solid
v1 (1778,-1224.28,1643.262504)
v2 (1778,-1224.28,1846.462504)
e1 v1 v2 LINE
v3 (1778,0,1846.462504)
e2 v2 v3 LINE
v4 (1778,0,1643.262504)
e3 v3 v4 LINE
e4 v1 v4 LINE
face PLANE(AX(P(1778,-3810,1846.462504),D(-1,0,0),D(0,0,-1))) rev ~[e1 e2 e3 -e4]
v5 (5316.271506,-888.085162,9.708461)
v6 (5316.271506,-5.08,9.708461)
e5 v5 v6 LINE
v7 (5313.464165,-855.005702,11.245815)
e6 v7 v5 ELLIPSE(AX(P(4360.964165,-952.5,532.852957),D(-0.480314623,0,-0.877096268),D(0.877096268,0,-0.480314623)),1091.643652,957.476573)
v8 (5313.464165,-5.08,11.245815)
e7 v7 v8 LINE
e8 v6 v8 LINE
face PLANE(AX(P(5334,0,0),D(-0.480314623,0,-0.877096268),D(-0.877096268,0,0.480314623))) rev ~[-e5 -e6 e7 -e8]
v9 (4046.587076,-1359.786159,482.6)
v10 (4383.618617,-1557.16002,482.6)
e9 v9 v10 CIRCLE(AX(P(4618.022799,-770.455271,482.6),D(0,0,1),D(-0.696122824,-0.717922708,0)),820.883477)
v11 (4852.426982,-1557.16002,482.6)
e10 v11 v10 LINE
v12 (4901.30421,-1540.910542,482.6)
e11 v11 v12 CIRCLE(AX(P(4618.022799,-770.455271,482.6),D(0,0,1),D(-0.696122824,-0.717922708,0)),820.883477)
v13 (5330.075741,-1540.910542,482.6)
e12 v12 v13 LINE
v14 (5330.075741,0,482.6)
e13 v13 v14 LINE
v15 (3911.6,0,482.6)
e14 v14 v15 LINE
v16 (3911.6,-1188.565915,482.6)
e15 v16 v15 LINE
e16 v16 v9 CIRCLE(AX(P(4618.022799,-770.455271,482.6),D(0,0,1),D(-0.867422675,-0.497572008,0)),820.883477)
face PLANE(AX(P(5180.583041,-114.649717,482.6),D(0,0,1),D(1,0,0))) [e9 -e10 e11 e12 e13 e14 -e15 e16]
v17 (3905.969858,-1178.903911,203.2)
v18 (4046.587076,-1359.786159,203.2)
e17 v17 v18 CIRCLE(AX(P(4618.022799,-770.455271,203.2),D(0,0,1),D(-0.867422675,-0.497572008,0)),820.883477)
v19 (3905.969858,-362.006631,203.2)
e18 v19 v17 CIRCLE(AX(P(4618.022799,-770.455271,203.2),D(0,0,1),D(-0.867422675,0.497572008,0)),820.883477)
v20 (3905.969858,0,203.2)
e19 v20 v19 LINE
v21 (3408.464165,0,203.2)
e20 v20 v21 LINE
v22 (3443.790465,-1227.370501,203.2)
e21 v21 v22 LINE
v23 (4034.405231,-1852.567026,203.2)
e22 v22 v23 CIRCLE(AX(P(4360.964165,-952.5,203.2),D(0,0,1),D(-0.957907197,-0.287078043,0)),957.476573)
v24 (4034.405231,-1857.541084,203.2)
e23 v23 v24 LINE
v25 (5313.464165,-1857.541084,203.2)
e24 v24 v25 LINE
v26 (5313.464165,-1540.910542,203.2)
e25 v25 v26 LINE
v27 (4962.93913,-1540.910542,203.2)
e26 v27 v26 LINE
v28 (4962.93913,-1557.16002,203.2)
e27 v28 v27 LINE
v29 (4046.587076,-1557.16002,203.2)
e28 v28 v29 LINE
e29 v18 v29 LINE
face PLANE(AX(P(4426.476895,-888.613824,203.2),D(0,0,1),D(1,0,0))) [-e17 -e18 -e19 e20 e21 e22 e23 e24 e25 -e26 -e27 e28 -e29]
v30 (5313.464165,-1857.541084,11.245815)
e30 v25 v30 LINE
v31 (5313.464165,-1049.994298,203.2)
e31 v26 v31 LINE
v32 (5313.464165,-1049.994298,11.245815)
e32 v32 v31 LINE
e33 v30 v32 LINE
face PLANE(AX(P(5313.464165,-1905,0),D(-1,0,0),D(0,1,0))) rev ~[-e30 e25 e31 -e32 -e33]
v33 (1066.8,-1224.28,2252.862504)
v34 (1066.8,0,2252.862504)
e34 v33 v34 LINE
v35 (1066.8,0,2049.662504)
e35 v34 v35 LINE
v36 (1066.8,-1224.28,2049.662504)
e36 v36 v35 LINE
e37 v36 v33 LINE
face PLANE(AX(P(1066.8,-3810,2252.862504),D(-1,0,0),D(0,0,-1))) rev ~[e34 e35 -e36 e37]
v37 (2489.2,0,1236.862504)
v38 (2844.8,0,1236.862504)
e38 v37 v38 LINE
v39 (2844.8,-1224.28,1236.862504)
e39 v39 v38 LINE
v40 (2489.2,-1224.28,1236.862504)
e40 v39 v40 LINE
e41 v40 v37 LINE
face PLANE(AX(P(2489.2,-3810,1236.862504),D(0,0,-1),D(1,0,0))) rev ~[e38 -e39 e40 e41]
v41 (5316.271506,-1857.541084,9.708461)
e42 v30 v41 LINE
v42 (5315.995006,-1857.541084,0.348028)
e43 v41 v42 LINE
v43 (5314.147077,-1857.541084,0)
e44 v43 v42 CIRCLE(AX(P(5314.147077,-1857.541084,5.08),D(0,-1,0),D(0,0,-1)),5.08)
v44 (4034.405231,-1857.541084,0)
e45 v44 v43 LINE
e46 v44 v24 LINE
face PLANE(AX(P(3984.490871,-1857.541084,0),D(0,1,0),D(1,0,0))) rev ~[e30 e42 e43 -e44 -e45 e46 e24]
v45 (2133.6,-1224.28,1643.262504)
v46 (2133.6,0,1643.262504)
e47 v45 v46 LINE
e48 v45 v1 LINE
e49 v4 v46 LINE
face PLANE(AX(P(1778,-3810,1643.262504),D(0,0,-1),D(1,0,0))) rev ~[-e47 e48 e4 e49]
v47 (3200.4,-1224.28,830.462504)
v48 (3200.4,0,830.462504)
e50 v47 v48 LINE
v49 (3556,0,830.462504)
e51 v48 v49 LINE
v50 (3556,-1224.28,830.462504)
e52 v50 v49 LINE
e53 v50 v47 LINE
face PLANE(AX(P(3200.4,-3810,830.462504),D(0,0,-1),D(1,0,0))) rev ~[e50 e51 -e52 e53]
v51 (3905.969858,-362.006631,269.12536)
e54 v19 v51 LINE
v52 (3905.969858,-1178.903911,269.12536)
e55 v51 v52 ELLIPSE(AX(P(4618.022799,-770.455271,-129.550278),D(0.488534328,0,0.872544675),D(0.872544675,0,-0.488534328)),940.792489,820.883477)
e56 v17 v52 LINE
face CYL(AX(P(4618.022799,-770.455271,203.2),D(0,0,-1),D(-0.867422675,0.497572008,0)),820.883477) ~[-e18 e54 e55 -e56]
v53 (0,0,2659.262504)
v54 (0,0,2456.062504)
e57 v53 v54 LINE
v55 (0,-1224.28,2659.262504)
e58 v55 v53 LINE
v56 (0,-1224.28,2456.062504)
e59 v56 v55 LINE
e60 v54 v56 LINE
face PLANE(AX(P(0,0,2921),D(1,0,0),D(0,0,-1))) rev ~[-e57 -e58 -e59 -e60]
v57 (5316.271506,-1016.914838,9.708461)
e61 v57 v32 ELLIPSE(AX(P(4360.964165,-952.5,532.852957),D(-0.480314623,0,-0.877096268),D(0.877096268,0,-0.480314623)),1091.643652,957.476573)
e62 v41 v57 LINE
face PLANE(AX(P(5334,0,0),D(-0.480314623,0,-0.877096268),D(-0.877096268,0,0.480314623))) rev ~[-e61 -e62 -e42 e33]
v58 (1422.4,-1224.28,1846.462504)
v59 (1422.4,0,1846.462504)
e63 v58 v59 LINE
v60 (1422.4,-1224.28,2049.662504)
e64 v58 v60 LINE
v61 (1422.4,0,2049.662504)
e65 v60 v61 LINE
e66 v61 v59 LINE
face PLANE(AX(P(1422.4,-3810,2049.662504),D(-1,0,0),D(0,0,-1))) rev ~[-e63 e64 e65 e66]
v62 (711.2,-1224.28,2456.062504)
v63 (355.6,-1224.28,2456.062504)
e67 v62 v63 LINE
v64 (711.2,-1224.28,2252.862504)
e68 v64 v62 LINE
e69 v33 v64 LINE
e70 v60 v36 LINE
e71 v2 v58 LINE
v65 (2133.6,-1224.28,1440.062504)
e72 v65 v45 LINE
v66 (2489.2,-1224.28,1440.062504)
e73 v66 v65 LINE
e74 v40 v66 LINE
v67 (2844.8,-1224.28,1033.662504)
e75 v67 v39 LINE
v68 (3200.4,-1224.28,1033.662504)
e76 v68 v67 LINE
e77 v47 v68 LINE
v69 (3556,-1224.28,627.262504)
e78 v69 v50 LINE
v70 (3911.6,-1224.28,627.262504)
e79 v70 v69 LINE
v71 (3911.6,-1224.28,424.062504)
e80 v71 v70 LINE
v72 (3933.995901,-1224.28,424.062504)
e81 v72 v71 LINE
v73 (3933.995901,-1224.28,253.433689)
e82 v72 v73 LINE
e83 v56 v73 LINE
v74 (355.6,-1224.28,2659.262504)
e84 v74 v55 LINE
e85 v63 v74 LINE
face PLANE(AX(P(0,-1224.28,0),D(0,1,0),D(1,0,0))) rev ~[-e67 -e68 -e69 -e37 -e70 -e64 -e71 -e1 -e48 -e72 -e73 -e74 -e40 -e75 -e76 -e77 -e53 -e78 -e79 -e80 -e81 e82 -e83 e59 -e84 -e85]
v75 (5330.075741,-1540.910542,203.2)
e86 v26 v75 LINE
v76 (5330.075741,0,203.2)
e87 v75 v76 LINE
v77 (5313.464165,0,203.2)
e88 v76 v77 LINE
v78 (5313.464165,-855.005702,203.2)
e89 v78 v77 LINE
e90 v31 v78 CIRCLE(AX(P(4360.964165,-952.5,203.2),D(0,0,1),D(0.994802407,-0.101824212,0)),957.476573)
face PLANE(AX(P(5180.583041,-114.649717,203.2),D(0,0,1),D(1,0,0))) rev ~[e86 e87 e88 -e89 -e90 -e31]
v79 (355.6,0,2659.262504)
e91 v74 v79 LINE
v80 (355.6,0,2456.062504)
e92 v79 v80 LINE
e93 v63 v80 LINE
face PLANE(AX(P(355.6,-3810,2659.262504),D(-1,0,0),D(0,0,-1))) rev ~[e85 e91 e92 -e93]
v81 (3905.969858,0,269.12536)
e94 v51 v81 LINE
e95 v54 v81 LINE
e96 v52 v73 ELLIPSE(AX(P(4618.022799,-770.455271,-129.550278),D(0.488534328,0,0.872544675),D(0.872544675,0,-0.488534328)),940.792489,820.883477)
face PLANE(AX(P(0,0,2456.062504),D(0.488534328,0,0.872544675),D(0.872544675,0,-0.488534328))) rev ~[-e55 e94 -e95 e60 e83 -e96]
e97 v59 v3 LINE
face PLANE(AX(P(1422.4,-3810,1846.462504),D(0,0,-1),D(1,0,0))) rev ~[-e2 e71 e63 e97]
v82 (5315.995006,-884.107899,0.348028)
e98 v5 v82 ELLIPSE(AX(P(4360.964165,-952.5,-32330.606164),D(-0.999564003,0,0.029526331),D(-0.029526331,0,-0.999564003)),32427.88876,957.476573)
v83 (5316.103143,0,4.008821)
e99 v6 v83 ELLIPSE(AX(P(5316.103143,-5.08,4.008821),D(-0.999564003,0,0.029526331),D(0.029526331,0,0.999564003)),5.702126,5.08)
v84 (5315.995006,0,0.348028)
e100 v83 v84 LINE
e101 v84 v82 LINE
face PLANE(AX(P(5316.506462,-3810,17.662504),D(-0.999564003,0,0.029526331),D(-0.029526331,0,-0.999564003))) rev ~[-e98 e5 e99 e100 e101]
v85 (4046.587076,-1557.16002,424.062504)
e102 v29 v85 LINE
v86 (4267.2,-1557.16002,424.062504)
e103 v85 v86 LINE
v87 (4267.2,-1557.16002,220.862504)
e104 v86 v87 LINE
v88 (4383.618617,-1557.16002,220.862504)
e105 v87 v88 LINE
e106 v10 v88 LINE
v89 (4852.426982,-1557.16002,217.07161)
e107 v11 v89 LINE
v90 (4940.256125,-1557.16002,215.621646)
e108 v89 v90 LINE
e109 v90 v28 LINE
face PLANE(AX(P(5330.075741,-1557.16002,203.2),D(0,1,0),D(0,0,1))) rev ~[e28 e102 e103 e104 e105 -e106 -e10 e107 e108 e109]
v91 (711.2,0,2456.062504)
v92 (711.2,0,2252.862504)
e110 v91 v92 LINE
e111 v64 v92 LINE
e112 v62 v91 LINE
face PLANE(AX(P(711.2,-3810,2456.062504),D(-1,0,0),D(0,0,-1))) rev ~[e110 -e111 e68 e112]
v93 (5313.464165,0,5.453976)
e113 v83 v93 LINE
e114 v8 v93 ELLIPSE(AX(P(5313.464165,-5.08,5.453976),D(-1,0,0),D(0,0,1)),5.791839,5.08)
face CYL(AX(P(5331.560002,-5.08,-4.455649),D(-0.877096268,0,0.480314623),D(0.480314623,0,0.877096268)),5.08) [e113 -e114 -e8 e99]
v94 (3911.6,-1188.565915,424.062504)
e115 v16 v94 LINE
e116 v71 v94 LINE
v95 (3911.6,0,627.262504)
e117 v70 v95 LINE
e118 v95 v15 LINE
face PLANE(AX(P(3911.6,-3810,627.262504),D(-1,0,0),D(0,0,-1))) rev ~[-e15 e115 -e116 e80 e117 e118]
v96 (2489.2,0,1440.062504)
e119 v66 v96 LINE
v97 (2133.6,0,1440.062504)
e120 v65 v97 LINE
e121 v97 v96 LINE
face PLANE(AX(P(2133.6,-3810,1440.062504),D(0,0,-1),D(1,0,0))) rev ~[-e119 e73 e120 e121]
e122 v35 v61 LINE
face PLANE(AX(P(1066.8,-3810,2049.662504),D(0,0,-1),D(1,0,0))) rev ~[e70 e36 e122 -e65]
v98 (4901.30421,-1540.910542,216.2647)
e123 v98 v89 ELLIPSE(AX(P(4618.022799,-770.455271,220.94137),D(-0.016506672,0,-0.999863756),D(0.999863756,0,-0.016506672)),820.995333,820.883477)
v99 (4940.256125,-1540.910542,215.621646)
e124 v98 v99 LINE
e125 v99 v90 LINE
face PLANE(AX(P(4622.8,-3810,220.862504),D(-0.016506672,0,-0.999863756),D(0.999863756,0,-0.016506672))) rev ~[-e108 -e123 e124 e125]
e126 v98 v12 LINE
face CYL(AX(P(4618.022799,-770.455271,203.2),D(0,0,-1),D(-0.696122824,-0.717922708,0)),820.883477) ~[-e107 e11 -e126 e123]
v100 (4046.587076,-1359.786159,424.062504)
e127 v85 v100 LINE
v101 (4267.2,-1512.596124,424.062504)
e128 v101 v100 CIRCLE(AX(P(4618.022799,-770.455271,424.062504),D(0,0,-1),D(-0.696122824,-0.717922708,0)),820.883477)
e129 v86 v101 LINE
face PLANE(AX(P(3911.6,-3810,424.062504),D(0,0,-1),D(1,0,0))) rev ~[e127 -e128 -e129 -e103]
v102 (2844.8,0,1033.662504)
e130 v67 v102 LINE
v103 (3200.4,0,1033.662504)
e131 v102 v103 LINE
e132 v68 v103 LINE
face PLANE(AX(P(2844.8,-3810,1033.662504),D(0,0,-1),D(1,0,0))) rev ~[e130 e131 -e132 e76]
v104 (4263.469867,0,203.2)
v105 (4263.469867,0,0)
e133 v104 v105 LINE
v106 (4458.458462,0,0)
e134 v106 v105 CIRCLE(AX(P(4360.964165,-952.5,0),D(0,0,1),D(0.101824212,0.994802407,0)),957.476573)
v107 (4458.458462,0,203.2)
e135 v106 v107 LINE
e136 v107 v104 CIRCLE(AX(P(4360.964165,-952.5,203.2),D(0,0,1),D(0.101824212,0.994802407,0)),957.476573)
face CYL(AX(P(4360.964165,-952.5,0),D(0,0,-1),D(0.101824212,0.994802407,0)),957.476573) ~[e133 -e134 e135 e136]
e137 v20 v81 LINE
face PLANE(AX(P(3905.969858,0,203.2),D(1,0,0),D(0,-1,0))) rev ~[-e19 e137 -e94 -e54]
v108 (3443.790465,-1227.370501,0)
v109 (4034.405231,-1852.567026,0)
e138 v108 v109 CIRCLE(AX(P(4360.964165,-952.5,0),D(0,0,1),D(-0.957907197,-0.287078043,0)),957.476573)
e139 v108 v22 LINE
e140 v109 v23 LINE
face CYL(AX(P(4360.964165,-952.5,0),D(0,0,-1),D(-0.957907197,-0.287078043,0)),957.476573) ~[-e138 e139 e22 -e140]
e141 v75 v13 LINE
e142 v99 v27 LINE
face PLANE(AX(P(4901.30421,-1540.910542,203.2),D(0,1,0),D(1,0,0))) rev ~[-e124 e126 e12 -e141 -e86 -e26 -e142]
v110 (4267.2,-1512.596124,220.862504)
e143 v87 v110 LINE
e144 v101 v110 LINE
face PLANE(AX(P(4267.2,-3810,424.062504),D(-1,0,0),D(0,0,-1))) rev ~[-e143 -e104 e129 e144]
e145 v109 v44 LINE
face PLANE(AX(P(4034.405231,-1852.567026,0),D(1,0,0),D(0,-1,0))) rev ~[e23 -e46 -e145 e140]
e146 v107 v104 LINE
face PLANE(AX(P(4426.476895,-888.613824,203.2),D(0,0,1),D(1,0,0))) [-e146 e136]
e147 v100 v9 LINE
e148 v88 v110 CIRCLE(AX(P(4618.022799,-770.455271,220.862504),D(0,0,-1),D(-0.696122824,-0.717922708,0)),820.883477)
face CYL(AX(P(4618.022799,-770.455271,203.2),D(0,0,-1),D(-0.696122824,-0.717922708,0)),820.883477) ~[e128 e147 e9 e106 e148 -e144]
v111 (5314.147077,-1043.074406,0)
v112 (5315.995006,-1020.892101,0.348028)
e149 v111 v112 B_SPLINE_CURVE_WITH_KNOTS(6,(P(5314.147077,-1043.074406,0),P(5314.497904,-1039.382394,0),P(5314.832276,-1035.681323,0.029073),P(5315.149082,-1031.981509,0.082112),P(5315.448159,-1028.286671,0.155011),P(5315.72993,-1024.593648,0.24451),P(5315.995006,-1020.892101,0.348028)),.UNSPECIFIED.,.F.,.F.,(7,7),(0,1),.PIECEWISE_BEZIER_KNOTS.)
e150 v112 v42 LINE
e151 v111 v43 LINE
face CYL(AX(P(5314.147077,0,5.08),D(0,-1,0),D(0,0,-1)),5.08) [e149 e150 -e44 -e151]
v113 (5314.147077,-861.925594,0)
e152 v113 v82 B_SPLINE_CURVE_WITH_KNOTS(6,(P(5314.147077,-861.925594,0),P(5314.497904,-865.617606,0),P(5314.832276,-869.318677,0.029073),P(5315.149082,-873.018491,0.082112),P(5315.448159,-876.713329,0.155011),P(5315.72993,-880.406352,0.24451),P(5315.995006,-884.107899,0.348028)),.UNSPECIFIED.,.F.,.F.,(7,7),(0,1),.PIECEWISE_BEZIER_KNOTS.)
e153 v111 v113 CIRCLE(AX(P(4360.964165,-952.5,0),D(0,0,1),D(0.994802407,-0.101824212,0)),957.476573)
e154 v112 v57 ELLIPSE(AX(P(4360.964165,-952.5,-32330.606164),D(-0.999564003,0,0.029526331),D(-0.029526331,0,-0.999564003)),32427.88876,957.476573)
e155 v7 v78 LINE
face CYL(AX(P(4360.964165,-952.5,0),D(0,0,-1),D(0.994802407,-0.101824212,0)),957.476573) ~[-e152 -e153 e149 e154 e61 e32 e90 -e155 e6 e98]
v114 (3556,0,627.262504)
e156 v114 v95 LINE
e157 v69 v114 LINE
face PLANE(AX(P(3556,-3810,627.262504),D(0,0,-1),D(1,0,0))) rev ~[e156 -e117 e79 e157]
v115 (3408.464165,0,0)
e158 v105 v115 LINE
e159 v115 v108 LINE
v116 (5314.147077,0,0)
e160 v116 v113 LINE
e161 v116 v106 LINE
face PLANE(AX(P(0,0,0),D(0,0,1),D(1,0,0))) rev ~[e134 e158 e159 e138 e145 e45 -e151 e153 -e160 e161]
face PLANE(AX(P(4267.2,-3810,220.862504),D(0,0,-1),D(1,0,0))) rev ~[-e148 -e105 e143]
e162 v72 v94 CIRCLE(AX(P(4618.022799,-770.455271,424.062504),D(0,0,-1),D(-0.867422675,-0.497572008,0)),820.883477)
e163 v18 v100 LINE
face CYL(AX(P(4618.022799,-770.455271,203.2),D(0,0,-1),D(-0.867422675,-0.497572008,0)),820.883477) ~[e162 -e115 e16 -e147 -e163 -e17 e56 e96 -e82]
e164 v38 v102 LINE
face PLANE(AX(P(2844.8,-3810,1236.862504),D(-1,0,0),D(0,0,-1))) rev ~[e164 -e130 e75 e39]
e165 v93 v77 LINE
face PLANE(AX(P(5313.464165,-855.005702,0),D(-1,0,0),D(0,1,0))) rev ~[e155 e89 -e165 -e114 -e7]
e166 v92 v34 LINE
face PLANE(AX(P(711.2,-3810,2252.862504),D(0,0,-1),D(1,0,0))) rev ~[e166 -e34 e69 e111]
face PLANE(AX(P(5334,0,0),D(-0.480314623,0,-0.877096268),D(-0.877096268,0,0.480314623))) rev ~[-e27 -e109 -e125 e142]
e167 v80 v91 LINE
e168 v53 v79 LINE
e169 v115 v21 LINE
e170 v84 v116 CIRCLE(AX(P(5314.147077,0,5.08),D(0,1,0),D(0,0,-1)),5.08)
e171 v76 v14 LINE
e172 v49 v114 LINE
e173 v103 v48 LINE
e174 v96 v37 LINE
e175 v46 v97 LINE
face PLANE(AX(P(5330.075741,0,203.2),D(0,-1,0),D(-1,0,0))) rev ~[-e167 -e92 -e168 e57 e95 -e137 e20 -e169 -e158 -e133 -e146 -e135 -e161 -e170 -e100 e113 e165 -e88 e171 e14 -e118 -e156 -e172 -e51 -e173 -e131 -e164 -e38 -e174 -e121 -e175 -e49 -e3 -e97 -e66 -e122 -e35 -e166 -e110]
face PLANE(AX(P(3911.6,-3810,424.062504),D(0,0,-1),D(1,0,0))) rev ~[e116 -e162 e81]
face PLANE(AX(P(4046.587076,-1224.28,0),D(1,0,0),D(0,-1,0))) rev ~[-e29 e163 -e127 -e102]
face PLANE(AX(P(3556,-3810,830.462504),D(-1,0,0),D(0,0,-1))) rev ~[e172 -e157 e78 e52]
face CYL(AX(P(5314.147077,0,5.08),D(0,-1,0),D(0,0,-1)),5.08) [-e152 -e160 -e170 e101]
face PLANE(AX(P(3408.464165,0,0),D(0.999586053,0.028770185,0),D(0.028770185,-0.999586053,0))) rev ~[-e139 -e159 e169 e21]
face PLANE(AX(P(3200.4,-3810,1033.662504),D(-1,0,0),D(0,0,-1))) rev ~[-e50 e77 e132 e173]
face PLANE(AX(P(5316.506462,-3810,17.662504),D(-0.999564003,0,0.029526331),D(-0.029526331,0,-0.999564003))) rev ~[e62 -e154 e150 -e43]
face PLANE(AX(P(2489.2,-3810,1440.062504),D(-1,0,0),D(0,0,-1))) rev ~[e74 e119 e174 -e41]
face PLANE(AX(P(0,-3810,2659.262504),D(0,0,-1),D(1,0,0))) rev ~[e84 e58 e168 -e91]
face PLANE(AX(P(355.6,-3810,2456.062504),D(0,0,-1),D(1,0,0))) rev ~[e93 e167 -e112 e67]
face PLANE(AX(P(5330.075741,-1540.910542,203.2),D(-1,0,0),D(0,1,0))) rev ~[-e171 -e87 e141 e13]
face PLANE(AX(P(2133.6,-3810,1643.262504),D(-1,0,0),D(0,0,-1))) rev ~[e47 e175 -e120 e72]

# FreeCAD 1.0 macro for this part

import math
import FreeCAD as App
import Part
import Sketcher
from FreeCAD import Vector
Q = App.Units.Quantity


def edges_at(feature, points):
    """Names of the edges that pass closest to the given points."""
    edges = feature.Shape.Edges
    near = lambda p: min(range(len(edges)), key=lambda i: edges[i].distToShape(Part.Vertex(*p))[0])
    return sorted({f"Edge{near(p) + 1}" for p in points})

doc = App.newDocument("Part")
body = doc.addObject("PartDesign::Body", "Body")

# Sketch on XZ plane
sketch1 = body.newObject("Sketcher::SketchObject", "Sketch")
sketch1.AttachmentSupport = (doc.getObject("XZ_Plane"), [""])
sketch1.MapMode = "FlatFace"
sketch1.addGeometry(Part.LineSegment(Vector(0, 2921, 0), Vector(0, 0, 0)), False)
sketch1.addGeometry(Part.LineSegment(Vector(0, 0, 0), Vector(5334, 0, 0)), False)
sketch1.addGeometry(Part.LineSegment(Vector(5334, 0, 0), Vector(0, 2921, 0)), False)
sketch1.addConstraint(Sketcher.Constraint("Coincident", 0, 2, 1, 1))
sketch1.addConstraint(Sketcher.Constraint("Coincident", 1, 2, 2, 1))
sketch1.addConstraint(Sketcher.Constraint("Coincident", 2, 2, 0, 1))
sketch1.addConstraint(Sketcher.Constraint("Vertical", 0))
sketch1.addConstraint(Sketcher.Constraint("Horizontal", 1))
sketch1.addConstraint(Sketcher.Constraint("Coincident", 0, 2, -1, 1))
sketch1.addConstraint(Sketcher.Constraint("DistanceX", 1, 1, 1, 2, Q("210 in")))
sketch1.addConstraint(Sketcher.Constraint("DistanceY", 0, 2, 0, 1, Q("115 in")))
pad1 = body.newObject("PartDesign::Pad", "Pad")
pad1.Profile = sketch1
pad1.Length = Q("150 in")
doc.recompute()

fillet = body.newObject("PartDesign::Fillet", "Fillet")
fillet.Base = (pad1, edges_at(pad1, [
    (5334, -1905, 0),
    (0, -1905, 2921),
    (2667, 0, 1460.5),
    (2667, -3810, 1460.5),
]))
fillet.Radius = Q("0.2 in")

# Sketch on XY plane
sketch2 = body.newObject("Sketcher::SketchObject", "Sketch001")
sketch2.AttachmentSupport = (doc.getObject("XY_Plane"), [""])
sketch2.MapMode = "FlatFace"
sketch2.addGeometry(Part.LineSegment(Vector(0, -3810, 0), Vector(0, -1224.28, 0)), False)
sketch2.addGeometry(Part.LineSegment(Vector(0, -1224.28, 0), Vector(4046.587076, -1224.28, 0)), False)
sketch2.addGeometry(Part.LineSegment(Vector(4046.587076, -1224.28, 0), Vector(4046.587076, -3810, 0)), False)
sketch2.addGeometry(Part.LineSegment(Vector(4046.587076, -3810, 0), Vector(0, -3810, 0)), False)
sketch2.addConstraint(Sketcher.Constraint("Coincident", 0, 2, 1, 1))
sketch2.addConstraint(Sketcher.Constraint("Coincident", 1, 2, 2, 1))
sketch2.addConstraint(Sketcher.Constraint("Coincident", 2, 2, 3, 1))
sketch2.addConstraint(Sketcher.Constraint("Coincident", 3, 2, 0, 1))
sketch2.addConstraint(Sketcher.Constraint("Vertical", 0))
sketch2.addConstraint(Sketcher.Constraint("Horizontal", 1))
sketch2.addConstraint(Sketcher.Constraint("Vertical", 2))
sketch2.addConstraint(Sketcher.Constraint("Horizontal", 3))
sketch2.addConstraint(Sketcher.Constraint("PointOnObject", 0, 2, -2))
sketch2.addConstraint(Sketcher.Constraint("DistanceY", 0, 1, 0, 2, Q("101.8 in")))
sketch2.addConstraint(Sketcher.Constraint("DistanceY", 2, 2, -1, 1, Q("150 in")))
sketch2.addConstraint(Sketcher.Constraint("DistanceX", 1, 1, 1, 2, Q("4046.587076 mm")))
pocket1 = body.newObject("PartDesign::Pocket", "Pocket")
pocket1.Profile = sketch2
pocket1.Length = Q("136 in")
pocket1.Reversed = True

# Sketch on XZ plane
sketch3 = body.newObject("Sketcher::SketchObject", "Sketch002")
sketch3.AttachmentSupport = (doc.getObject("XZ_Plane"), [""])
sketch3.MapMode = "FlatFace"
sketch3.AttachmentOffset = App.Placement(Vector(0, 0, 150 * 25.4), App.Rotation())
sketch3.addGeometry(Part.LineSegment(Vector(5320.903186, 166.506157, 0), Vector(2856.962738, 1525.921576, 0)), False)
sketch3.addGeometry(Part.LineSegment(Vector(2856.962738, 1525.921576, 0), Vector(0, 3038.563251, 0)), False)
sketch3.addGeometry(Part.LineSegment(Vector(0, 3038.563251, 0), Vector(-325.419694, 3048.737288, 0)), False)
sketch3.addGeometry(Part.LineSegment(Vector(-325.419694, 3048.737288, 0), Vector(-325.419694, -137.840956, 0)), False)
sketch3.addGeometry(Part.LineSegment(Vector(-325.419694, -137.840956, 0), Vector(5320.903186, -137.840956, 0)), False)
sketch3.addGeometry(Part.LineSegment(Vector(5320.903186, -137.840956, 0), Vector(5320.903186, 166.506157, 0)), False)
sketch3.addGeometry(Part.LineSegment(Vector(355.6, 2659.262504, 0), Vector(355.6, 2456.062504, 0)), False)
sketch3.addGeometry(Part.LineSegment(Vector(355.6, 2456.062504, 0), Vector(711.2, 2456.062504, 0)), False)
sketch3.addGeometry(Part.LineSegment(Vector(711.2, 2456.062504, 0), Vector(711.2, 2252.862504, 0)), False)
sketch3.addGeometry(Part.LineSegment(Vector(711.2, 2252.862504, 0), Vector(1066.8, 2252.862504, 0)), False)
sketch3.addGeometry(Part.LineSegment(Vector(1066.8, 2252.862504, 0), Vector(1066.8, 2049.662504, 0)), False)
sketch3.addGeometry(Part.LineSegment(Vector(1066.8, 2049.662504, 0), Vector(1422.4, 2049.662504, 0)), False)
sketch3.addGeometry(Part.LineSegment(Vector(1422.4, 2049.662504, 0), Vector(1422.4, 1846.462504, 0)), False)
sketch3.addGeometry(Part.LineSegment(Vector(1422.4, 1846.462504, 0), Vector(1778, 1846.462504, 0)), False)
sketch3.addGeometry(Part.LineSegment(Vector(1778, 1846.462504, 0), Vector(1778, 1643.262504, 0)), False)
sketch3.addGeometry(Part.LineSegment(Vector(1778, 1643.262504, 0), Vector(2133.6, 1643.262504, 0)), False)
sketch3.addGeometry(Part.LineSegment(Vector(2133.6, 1643.262504, 0), Vector(2133.6, 1440.062504, 0)), False)
sketch3.addGeometry(Part.LineSegment(Vector(2133.6, 1440.062504, 0), Vector(2489.2, 1440.062504, 0)), False)
sketch3.addGeometry(Part.LineSegment(Vector(2489.2, 1440.062504, 0), Vector(2489.2, 1236.862504, 0)), False)
sketch3.addGeometry(Part.LineSegment(Vector(2489.2, 1236.862504, 0), Vector(2844.8, 1236.862504, 0)), False)
sketch3.addGeometry(Part.LineSegment(Vector(2844.8, 1236.862504, 0), Vector(2844.8, 1033.662504, 0)), False)
sketch3.addGeometry(Part.LineSegment(Vector(2844.8, 1033.662504, 0), Vector(3200.4, 1033.662504, 0)), False)
sketch3.addGeometry(Part.LineSegment(Vector(3200.4, 1033.662504, 0), Vector(3200.4, 830.462504, 0)), False)
sketch3.addGeometry(Part.LineSegment(Vector(3200.4, 830.462504, 0), Vector(3556, 830.462504, 0)), False)
sketch3.addGeometry(Part.LineSegment(Vector(3556, 830.462504, 0), Vector(3556, 627.262504, 0)), False)
sketch3.addGeometry(Part.LineSegment(Vector(3556, 627.262504, 0), Vector(3911.6, 627.262504, 0)), False)
sketch3.addGeometry(Part.LineSegment(Vector(3911.6, 627.262504, 0), Vector(3911.6, 424.062504, 0)), False)
sketch3.addGeometry(Part.LineSegment(Vector(3911.6, 424.062504, 0), Vector(4267.2, 424.062504, 0)), False)
sketch3.addGeometry(Part.LineSegment(Vector(4267.2, 424.062504, 0), Vector(4267.2, 220.862504, 0)), False)
sketch3.addGeometry(Part.LineSegment(Vector(4267.2, 220.862504, 0), Vector(4622.8, 220.862504, 0)), False)
sketch3.addGeometry(Part.LineSegment(Vector(4622.8, 220.862504, 0), Vector(4958.137693, 215.32644, 0)), False)
sketch3.addGeometry(Part.LineSegment(Vector(4958.137693, 215.32644, 0), Vector(5316.576108, 20.020245, 0)), False)
sketch3.addGeometry(Part.LineSegment(Vector(5316.576108, 20.020245, 0), Vector(5316.506462, 17.662504, 0)), False)
sketch3.addGeometry(Part.LineSegment(Vector(5316.506462, 17.662504, 0), Vector(5315.984726, 0, 0)), False)
sketch3.addGeometry(Part.LineSegment(Vector(5315.984726, 0, 0), Vector(0, 0, 0)), False)
sketch3.addGeometry(Part.LineSegment(Vector(0, 0, 0), Vector(0, 2659.262504, 0)), False)
sketch3.addGeometry(Part.LineSegment(Vector(0, 2659.262504, 0), Vector(355.6, 2659.262504, 0)), False)
sketch3.addConstraint(Sketcher.Constraint("Coincident", 0, 2, 1, 1))
sketch3.addConstraint(Sketcher.Constraint("Coincident", 1, 2, 2, 1))
sketch3.addConstraint(Sketcher.Constraint("Coincident", 2, 2, 3, 1))
sketch3.addConstraint(Sketcher.Constraint("Coincident", 3, 2, 4, 1))
sketch3.addConstraint(Sketcher.Constraint("Coincident", 4, 2, 5, 1))
sketch3.addConstraint(Sketcher.Constraint("Coincident", 5, 2, 0, 1))
sketch3.addConstraint(Sketcher.Constraint("Coincident", 6, 2, 7, 1))
sketch3.addConstraint(Sketcher.Constraint("Coincident", 7, 2, 8, 1))
sketch3.addConstraint(Sketcher.Constraint("Coincident", 8, 2, 9, 1))
sketch3.addConstraint(Sketcher.Constraint("Coincident", 9, 2, 10, 1))
sketch3.addConstraint(Sketcher.Constraint("Coincident", 10, 2, 11, 1))
sketch3.addConstraint(Sketcher.Constraint("Coincident", 11, 2, 12, 1))
sketch3.addConstraint(Sketcher.Constraint("Coincident", 12, 2, 13, 1))
sketch3.addConstraint(Sketcher.Constraint("Coincident", 13, 2, 14, 1))
sketch3.addConstraint(Sketcher.Constraint("Coincident", 14, 2, 15, 1))
sketch3.addConstraint(Sketcher.Constraint("Coincident", 15, 2, 16, 1))
sketch3.addConstraint(Sketcher.Constraint("Coincident", 16, 2, 17, 1))
sketch3.addConstraint(Sketcher.Constraint("Coincident", 17, 2, 18, 1))
sketch3.addConstraint(Sketcher.Constraint("Coincident", 18, 2, 19, 1))
sketch3.addConstraint(Sketcher.Constraint("Coincident", 19, 2, 20, 1))
sketch3.addConstraint(Sketcher.Constraint("Coincident", 20, 2, 21, 1))
sketch3.addConstraint(Sketcher.Constraint("Coincident", 21, 2, 22, 1))
sketch3.addConstraint(Sketcher.Constraint("Coincident", 22, 2, 23, 1))
sketch3.addConstraint(Sketcher.Constraint("Coincident", 23, 2, 24, 1))
sketch3.addConstraint(Sketcher.Constraint("Coincident", 24, 2, 25, 1))
sketch3.addConstraint(Sketcher.Constraint("Coincident", 25, 2, 26, 1))
sketch3.addConstraint(Sketcher.Constraint("Coincident", 26, 2, 27, 1))
sketch3.addConstraint(Sketcher.Constraint("Coincident", 27, 2, 28, 1))
sketch3.addConstraint(Sketcher.Constraint("Coincident", 28, 2, 29, 1))
sketch3.addConstraint(Sketcher.Constraint("Coincident", 29, 2, 30, 1))
sketch3.addConstraint(Sketcher.Constraint("Coincident", 30, 2, 31, 1))
sketch3.addConstraint(Sketcher.Constraint("Coincident", 31, 2, 32, 1))
sketch3.addConstraint(Sketcher.Constraint("Coincident", 32, 2, 33, 1))
sketch3.addConstraint(Sketcher.Constraint("Coincident", 33, 2, 34, 1))
sketch3.addConstraint(Sketcher.Constraint("Coincident", 34, 2, 35, 1))
sketch3.addConstraint(Sketcher.Constraint("Coincident", 35, 2, 36, 1))
sketch3.addConstraint(Sketcher.Constraint("Coincident", 36, 2, 6, 1))
sketch3.addConstraint(Sketcher.Constraint("Vertical", 3))
sketch3.addConstraint(Sketcher.Constraint("Horizontal", 4))
sketch3.addConstraint(Sketcher.Constraint("Vertical", 5))
sketch3.addConstraint(Sketcher.Constraint("Vertical", 6))
sketch3.addConstraint(Sketcher.Constraint("Horizontal", 7))
sketch3.addConstraint(Sketcher.Constraint("Vertical", 8))
sketch3.addConstraint(Sketcher.Constraint("Horizontal", 9))
sketch3.addConstraint(Sketcher.Constraint("Vertical", 10))
sketch3.addConstraint(Sketcher.Constraint("Horizontal", 11))
sketch3.addConstraint(Sketcher.Constraint("Vertical", 12))
sketch3.addConstraint(Sketcher.Constraint("Horizontal", 13))
sketch3.addConstraint(Sketcher.Constraint("Vertical", 14))
sketch3.addConstraint(Sketcher.Constraint("Horizontal", 15))
sketch3.addConstraint(Sketcher.Constraint("Vertical", 16))
sketch3.addConstraint(Sketcher.Constraint("Horizontal", 17))
sketch3.addConstraint(Sketcher.Constraint("Vertical", 18))
sketch3.addConstraint(Sketcher.Constraint("Horizontal", 19))
sketch3.addConstraint(Sketcher.Constraint("Vertical", 20))
sketch3.addConstraint(Sketcher.Constraint("Horizontal", 21))
sketch3.addConstraint(Sketcher.Constraint("Vertical", 22))
sketch3.addConstraint(Sketcher.Constraint("Horizontal", 23))
sketch3.addConstraint(Sketcher.Constraint("Vertical", 24))
sketch3.addConstraint(Sketcher.Constraint("Horizontal", 25))
sketch3.addConstraint(Sketcher.Constraint("Vertical", 26))
sketch3.addConstraint(Sketcher.Constraint("Horizontal", 27))
sketch3.addConstraint(Sketcher.Constraint("Vertical", 28))
sketch3.addConstraint(Sketcher.Constraint("Horizontal", 29))
sketch3.addConstraint(Sketcher.Constraint("Horizontal", 34))
sketch3.addConstraint(Sketcher.Constraint("Vertical", 35))
sketch3.addConstraint(Sketcher.Constraint("Horizontal", 36))
sketch3.addConstraint(Sketcher.Constraint("Coincident", 34, 2, -1, 1))
sketch3.addConstraint(Sketcher.Constraint("PointOnObject", 1, 2, -2))
sketch3.addConstraint(Sketcher.Constraint("Parallel", 32, 33))
sketch3.addConstraint(Sketcher.Constraint("Equal", 7, 9))
sketch3.addConstraint(Sketcher.Constraint("Equal", 9, 11))
sketch3.addConstraint(Sketcher.Constraint("Equal", 11, 13))
sketch3.addConstraint(Sketcher.Constraint("Equal", 13, 15))
sketch3.addConstraint(Sketcher.Constraint("Equal", 15, 17))
sketch3.addConstraint(Sketcher.Constraint("Equal", 17, 19))
sketch3.addConstraint(Sketcher.Constraint("Equal", 19, 21))
sketch3.addConstraint(Sketcher.Constraint("Equal", 21, 23))
sketch3.addConstraint(Sketcher.Constraint("Equal", 23, 25))
sketch3.addConstraint(Sketcher.Constraint("Equal", 25, 27))
sketch3.addConstraint(Sketcher.Constraint("Equal", 27, 29))
sketch3.addConstraint(Sketcher.Constraint("Equal", 29, 36))
sketch3.addConstraint(Sketcher.Constraint("Equal", 6, 8))
sketch3.addConstraint(Sketcher.Constraint("Equal", 8, 10))
sketch3.addConstraint(Sketcher.Constraint("Equal", 10, 12))
sketch3.addConstraint(Sketcher.Constraint("Equal", 12, 14))
sketch3.addConstraint(Sketcher.Constraint("Equal", 14, 16))
sketch3.addConstraint(Sketcher.Constraint("Equal", 16, 18))
sketch3.addConstraint(Sketcher.Constraint("Equal", 18, 20))
sketch3.addConstraint(Sketcher.Constraint("Equal", 20, 22))
sketch3.addConstraint(Sketcher.Constraint("Equal", 22, 24))
sketch3.addConstraint(Sketcher.Constraint("Equal", 24, 26))
sketch3.addConstraint(Sketcher.Constraint("Equal", 26, 28))
sketch3.addConstraint(Sketcher.Constraint("DistanceX", 7, 1, 7, 2, Q("14 in")))
sketch3.addConstraint(Sketcher.Constraint("DistanceY", 6, 2, 6, 1, Q("8 in")))
sketch3.addConstraint(Sketcher.Constraint("DistanceY", 32, 2, 29, 2, Q("8 in")))
sketch3.addConstraint(Sketcher.Constraint("DistanceX", 4, 1, 4, 2, Q("5646.32288 mm")))
sketch3.addConstraint(Sketcher.Constraint("DistanceY", 4, 2, 31, 2, Q("157.861202 mm")))
sketch3.addConstraint(Sketcher.Constraint("Distance", 0, Q("2814.07406 mm")))
sketch3.addConstraint(Sketcher.Constraint("Distance", 32, Q("2.35877 mm")))
sketch3.addConstraint(Sketcher.Constraint("DistanceX", 34, 2, 34, 1, Q("5315.984726 mm")))
sketch3.addConstraint(Sketcher.Constraint("DistanceY", 3, 2, 3, 1, Q("3186.578244 mm")))
sketch3.addConstraint(Sketcher.Constraint("DistanceY", 5, 1, 5, 2, Q("304.347113 mm")))
sketch3.addConstraint(Sketcher.Constraint("DistanceY", 35, 1, 35, 2, Q("2659.262504 mm")))
sketch3.addConstraint(Sketcher.Constraint("DistanceX", -1, 1, 0, 2, Q("2856.962738 mm")))
sketch3.addConstraint(Sketcher.Constraint("DistanceY", -1, 1, 1, 2, Q("3038.563251 mm")))
sketch3.addConstraint(Sketcher.Constraint("DistanceY", -1, 1, 30, 2, Q("215.32644 mm")))
sketch3.addConstraint(Sketcher.Constraint("DistanceX", -1, 1, 31, 2, Q("5316.576108 mm")))
sketch3.addConstraint(Sketcher.Constraint("DistanceY", 0, 2, 2, 2, Q("1522.815711 mm")))
sketch3.addConstraint(Sketcher.Constraint("DistanceX", 30, 2, 32, 2, Q("358.368769 mm")))
pocket2 = body.newObject("PartDesign::Pocket", "Pocket001")
pocket2.Profile = sketch3
pocket2.Length = Q("169 in")

# Sketch on XZ plane
sketch4 = body.newObject("Sketcher::SketchObject", "Sketch003")
sketch4.AttachmentSupport = (doc.getObject("XZ_Plane"), [""])
sketch4.MapMode = "FlatFace"
sketch4.addGeometry(Part.LineSegment(Vector(4386.640072, 0, 0), Vector(0, 0, 0)), False)
sketch4.addGeometry(Part.LineSegment(Vector(0, 0, 0), Vector(0, 2456.062504, 0)), False)
sketch4.addGeometry(Part.LineSegment(Vector(0, 2456.062504, 0), Vector(4386.640072, 0, 0)), False)
sketch4.addConstraint(Sketcher.Constraint("Coincident", 0, 2, 1, 1))
sketch4.addConstraint(Sketcher.Constraint("Coincident", 1, 2, 2, 1))
sketch4.addConstraint(Sketcher.Constraint("Coincident", 2, 2, 0, 1))
sketch4.addConstraint(Sketcher.Constraint("Horizontal", 0))
sketch4.addConstraint(Sketcher.Constraint("Vertical", 1))
sketch4.addConstraint(Sketcher.Constraint("Coincident", 0, 2, -1, 1))
sketch4.addConstraint(Sketcher.Constraint("DistanceX", 0, 2, 0, 1, Q("4386.640072 mm")))
sketch4.addConstraint(Sketcher.Constraint("Distance", 2, Q("5027.410282 mm")))
pocket3 = body.newObject("PartDesign::Pocket", "Pocket002")
pocket3.Profile = sketch4
pocket3.Length = Q("218 in")
pocket3.Reversed = True

# Sketch on XY plane
sketch5 = body.newObject("Sketcher::SketchObject", "Sketch004")
sketch5.AttachmentSupport = (doc.getObject("XY_Plane"), [""])
sketch5.MapMode = "FlatFace"
sketch5.addGeometry(Part.LineSegment(Vector(5313.464165, 0, 0), Vector(4458.458462, 0, 0)), False)
sketch5.addGeometry(Part.ArcOfCircle(Part.Circle(Vector(4360.964165, -952.5, 0), Vector(0, 0, 1), 957.476573), math.radians(84.155774), math.radians(95.844226)), False)
sketch5.addGeometry(Part.LineSegment(Vector(4263.469867, 0, 0), Vector(3408.464165, 0, 0)), False)
sketch5.addGeometry(Part.LineSegment(Vector(3408.464165, 0, 0), Vector(3443.790465, -1227.370501, 0)), False)
sketch5.addGeometry(Part.ArcOfCircle(Part.Circle(Vector(4360.964165, -952.5, 0), Vector(0, 0, 1), 957.476573), math.radians(-163.316897), math.radians(-109.941594)), False)
sketch5.addGeometry(Part.LineSegment(Vector(4034.405231, -1852.567026, 0), Vector(4034.405231, -1905, 0)), False)
sketch5.addGeometry(Part.LineSegment(Vector(4034.405231, -1905, 0), Vector(4263.469867, -1905, 0)), False)
sketch5.addGeometry(Part.ArcOfCircle(Part.Circle(Vector(4360.964165, -952.5, 0), Vector(0, 0, 1), 957.476573), math.radians(-95.844226), math.radians(-84.155774)), False)
sketch5.addGeometry(Part.LineSegment(Vector(4458.458462, -1905, 0), Vector(5313.464165, -1905, 0)), False)
sketch5.addGeometry(Part.LineSegment(Vector(5313.464165, -1905, 0), Vector(5313.464165, -1049.994298, 0)), False)
sketch5.addGeometry(Part.ArcOfCircle(Part.Circle(Vector(4360.964165, -952.5, 0), Vector(0, 0, 1), 957.476573), math.radians(-5.844226), math.radians(5.844226)), False)
sketch5.addGeometry(Part.LineSegment(Vector(5313.464165, -855.005702, 0), Vector(5313.464165, 0, 0)), False)
sketch5.addConstraint(Sketcher.Constraint("Coincident", 0, 2, 1, 1))
sketch5.addConstraint(Sketcher.Constraint("Coincident", 1, 2, 2, 1))
sketch5.addConstraint(Sketcher.Constraint("Coincident", 2, 2, 3, 1))
sketch5.addConstraint(Sketcher.Constraint("Coincident", 3, 2, 4, 1))
sketch5.addConstraint(Sketcher.Constraint("Coincident", 4, 2, 5, 1))
sketch5.addConstraint(Sketcher.Constraint("Coincident", 5, 2, 6, 1))
sketch5.addConstraint(Sketcher.Constraint("Coincident", 6, 2, 7, 1))
sketch5.addConstraint(Sketcher.Constraint("Coincident", 7, 2, 8, 1))
sketch5.addConstraint(Sketcher.Constraint("Coincident", 8, 2, 9, 1))
sketch5.addConstraint(Sketcher.Constraint("Coincident", 9, 2, 10, 1))
sketch5.addConstraint(Sketcher.Constraint("Coincident", 10, 2, 11, 1))
sketch5.addConstraint(Sketcher.Constraint("Coincident", 11, 2, 0, 1))
sketch5.addConstraint(Sketcher.Constraint("Horizontal", 0))
sketch5.addConstraint(Sketcher.Constraint("Horizontal", 2))
sketch5.addConstraint(Sketcher.Constraint("Vertical", 5))
sketch5.addConstraint(Sketcher.Constraint("Horizontal", 6))
sketch5.addConstraint(Sketcher.Constraint("Horizontal", 8))
sketch5.addConstraint(Sketcher.Constraint("Vertical", 9))
sketch5.addConstraint(Sketcher.Constraint("Vertical", 11))
sketch5.addConstraint(Sketcher.Constraint("Coincident", 4, 3, 1, 3))
sketch5.addConstraint(Sketcher.Constraint("Coincident", 7, 3, 1, 3))
sketch5.addConstraint(Sketcher.Constraint("Coincident", 10, 3, 1, 3))
sketch5.addConstraint(Sketcher.Constraint("Equal", 1, 4))
sketch5.addConstraint(Sketcher.Constraint("Equal", 4, 7))
sketch5.addConstraint(Sketcher.Constraint("Equal", 7, 10))
sketch5.addConstraint(Sketcher.Constraint("PointOnObject", 0, 2, -1))
sketch5.addConstraint(Sketcher.Constraint("PointOnObject", 2, 2, -1))
sketch5.addConstraint(Sketcher.Constraint("Equal", 0, 2))
sketch5.addConstraint(Sketcher.Constraint("Equal", 2, 8))
sketch5.addConstraint(Sketcher.Constraint("Equal", 8, 9))
sketch5.addConstraint(Sketcher.Constraint("Equal", 9, 11))
sketch5.addConstraint(Sketcher.Constraint("DistanceY", 5, 2, -1, 1, Q("75 in")))
sketch5.addConstraint(Sketcher.Constraint("DistanceY", 8, 2, -1, 1, Q("75 in")))
sketch5.addConstraint(Sketcher.Constraint("Radius", 1, Q("957.476573 mm")))
sketch5.addConstraint(Sketcher.Constraint("DistanceY", 3, 2, -1, 1, Q("1227.370501 mm")))
sketch5.addConstraint(Sketcher.Constraint("DistanceX", 6, 1, 6, 2, Q("229.064636 mm")))
sketch5.addConstraint(Sketcher.Constraint("DistanceX", -1, 1, 5, 2, Q("4034.405231 mm")))
pad2 = body.newObject("PartDesign::Pad", "Pad001")
pad2.Profile = sketch5
pad2.Length = Q("8 in")

# Sketch on XY plane
sketch6 = body.newObject("Sketcher::SketchObject", "Sketch005")
sketch6.AttachmentSupport = (doc.getObject("XY_Plane"), [""])
sketch6.MapMode = "FlatFace"
sketch6.addGeometry(Part.LineSegment(Vector(3984.490871, -1857.541084, 0), Vector(3984.490871, -3945.848227, 0)), False)
sketch6.addGeometry(Part.LineSegment(Vector(3984.490871, -3945.848227, 0), Vector(5445.543766, -3945.848227, 0)), False)
sketch6.addGeometry(Part.LineSegment(Vector(5445.543766, -3945.848227, 0), Vector(5445.543766, -1857.541084, 0)), False)
sketch6.addGeometry(Part.LineSegment(Vector(5445.543766, -1857.541084, 0), Vector(3984.490871, -1857.541084, 0)), False)
sketch6.addConstraint(Sketcher.Constraint("Coincident", 0, 2, 1, 1))
sketch6.addConstraint(Sketcher.Constraint("Coincident", 1, 2, 2, 1))
sketch6.addConstraint(Sketcher.Constraint("Coincident", 2, 2, 3, 1))
sketch6.addConstraint(Sketcher.Constraint("Coincident", 3, 2, 0, 1))
sketch6.addConstraint(Sketcher.Constraint("Vertical", 0))
sketch6.addConstraint(Sketcher.Constraint("Horizontal", 1))
sketch6.addConstraint(Sketcher.Constraint("Vertical", 2))
sketch6.addConstraint(Sketcher.Constraint("Horizontal", 3))
sketch6.addConstraint(Sketcher.Constraint("DistanceX", 1, 1, 1, 2, Q("1461.052895 mm")))
sketch6.addConstraint(Sketcher.Constraint("DistanceY", 0, 2, 0, 1, Q("2088.307142 mm")))
sketch6.addConstraint(Sketcher.Constraint("DistanceX", -1, 1, 0, 2, Q("3984.490871 mm")))
sketch6.addConstraint(Sketcher.Constraint("DistanceY", 0, 2, -1, 1, Q("3945.848227 mm")))
pocket4 = body.newObject("PartDesign::Pocket", "Pocket003")
pocket4.Profile = sketch6
pocket4.Length = Q("42 in")
pocket4.Reversed = True

# Sketch on XY plane
sketch7 = body.newObject("Sketcher::SketchObject", "Sketch006")
sketch7.AttachmentSupport = (doc.getObject("XY_Plane"), [""])
sketch7.MapMode = "FlatFace"
sketch7.AttachmentOffset = App.Placement(Vector(0, 0, 8 * 25.4), App.Rotation())
sketch7.addGeometry(Part.LineSegment(Vector(5330.075741, 0, 0), Vector(3905.969858, 0, 0)), False)
sketch7.addGeometry(Part.LineSegment(Vector(3905.969858, 0, 0), Vector(3905.969858, -362.006631, 0)), False)
sketch7.addGeometry(Part.ArcOfCircle(Part.Circle(Vector(4618.022799, -770.455271, 0), Vector(0, 0, 1), 820.883477), math.radians(150.160505), math.radians(209.839495)), False)
sketch7.addGeometry(Part.ArcOfCircle(Part.Circle(Vector(4618.022799, -770.455271, 0), Vector(0, 0, 1), 820.883477), math.radians(-150.160505), math.radians(-134.116759)), False)
sketch7.addGeometry(Part.ArcOfCircle(Part.Circle(Vector(4618.022799, -770.455271, 0), Vector(0, 0, 1), 820.883477), math.radians(-134.116759), math.radians(-69.812507)), False)
sketch7.addGeometry(Part.LineSegment(Vector(4901.30421, -1540.910542, 0), Vector(5330.075741, -1540.910542, 0)), False)
sketch7.addGeometry(Part.LineSegment(Vector(5330.075741, -1540.910542, 0), Vector(5330.075741, 0, 0)), False)
sketch7.addConstraint(Sketcher.Constraint("Coincident", 0, 2, 1, 1))
sketch7.addConstraint(Sketcher.Constraint("Coincident", 1, 2, 2, 1))
sketch7.addConstraint(Sketcher.Constraint("Coincident", 2, 2, 3, 1))
sketch7.addConstraint(Sketcher.Constraint("Coincident", 3, 2, 4, 1))
sketch7.addConstraint(Sketcher.Constraint("Coincident", 4, 2, 5, 1))
sketch7.addConstraint(Sketcher.Constraint("Coincident", 5, 2, 6, 1))
sketch7.addConstraint(Sketcher.Constraint("Coincident", 6, 2, 0, 1))
sketch7.addConstraint(Sketcher.Constraint("Horizontal", 0))
sketch7.addConstraint(Sketcher.Constraint("Vertical", 1))
sketch7.addConstraint(Sketcher.Constraint("Horizontal", 5))
sketch7.addConstraint(Sketcher.Constraint("Vertical", 6))
sketch7.addConstraint(Sketcher.Constraint("Coincident", 3, 3, 2, 3))
sketch7.addConstraint(Sketcher.Constraint("Coincident", 4, 3, 2, 3))
sketch7.addConstraint(Sketcher.Constraint("PointOnObject", 0, 2, -1))
sketch7.addConstraint(Sketcher.Constraint("Vertical", 1, 2, 2, 2))
sketch7.addConstraint(Sketcher.Constraint("Radius", 2, Q("820.883477 mm")))
sketch7.addConstraint(Sketcher.Constraint("DistanceX", 5, 1, 5, 2, Q("428.77153 mm")))
sketch7.addConstraint(Sketcher.Constraint("DistanceY", 1, 2, 1, 1, Q("362.006631 mm")))
sketch7.addConstraint(Sketcher.Constraint("DistanceX", -1, 1, 2, 3, Q("4618.022799 mm")))
sketch7.addConstraint(Sketcher.Constraint("DistanceX", 0, 2, 0, 1, Q("1424.105883 mm")))
sketch7.addConstraint(Sketcher.Constraint("DistanceY", 6, 1, 6, 2, Q("1540.910542 mm")))
sketch7.addConstraint(Sketcher.Constraint("DistanceY", 3, 2, -1, 1, Q("1359.786159 mm")))
pad3 = body.newObject("PartDesign::Pad", "Pad002")
pad3.Profile = sketch7
pad3.Length = Q("11 in")

# Sketch on YZ plane
sketch8 = body.newObject("Sketcher::SketchObject", "Sketch007")
sketch8.AttachmentSupport = (doc.getObject("YZ_Plane"), [""])
sketch8.MapMode = "FlatFace"
sketch8.AttachmentOffset = App.Placement(Vector(0, 0, 5330.075741), App.Rotation())
sketch8.addGeometry(Part.LineSegment(Vector(-1979.750991, 514.123917, 0), Vector(-1979.750991, 203.2, 0)), False)
sketch8.addGeometry(Part.LineSegment(Vector(-1979.750991, 203.2, 0), Vector(-1557.16002, 203.2, 0)), False)
sketch8.addGeometry(Part.LineSegment(Vector(-1557.16002, 203.2, 0), Vector(-1557.16002, 514.123917, 0)), False)
sketch8.addGeometry(Part.LineSegment(Vector(-1557.16002, 514.123917, 0), Vector(-1979.750991, 514.123917, 0)), False)
sketch8.addConstraint(Sketcher.Constraint("Coincident", 0, 2, 1, 1))
sketch8.addConstraint(Sketcher.Constraint("Coincident", 1, 2, 2, 1))
sketch8.addConstraint(Sketcher.Constraint("Coincident", 2, 2, 3, 1))
sketch8.addConstraint(Sketcher.Constraint("Coincident", 3, 2, 0, 1))
sketch8.addConstraint(Sketcher.Constraint("Vertical", 0))
sketch8.addConstraint(Sketcher.Constraint("Horizontal", 1))
sketch8.addConstraint(Sketcher.Constraint("Vertical", 2))
sketch8.addConstraint(Sketcher.Constraint("Horizontal", 3))
sketch8.addConstraint(Sketcher.Constraint("DistanceY", -1, 1, 0, 2, Q("8 in")))
sketch8.addConstraint(Sketcher.Constraint("DistanceX", 1, 1, 1, 2, Q("422.590971 mm")))
sketch8.addConstraint(Sketcher.Constraint("DistanceY", 0, 2, 0, 1, Q("310.923917 mm")))
sketch8.addConstraint(Sketcher.Constraint("DistanceX", 0, 2, -1, 1, Q("1979.750991 mm")))
pocket5 = body.newObject("PartDesign::Pocket", "Pocket004")
pocket5.Profile = sketch8
pocket5.Length = Q("146.8 in")

doc.recompute()
